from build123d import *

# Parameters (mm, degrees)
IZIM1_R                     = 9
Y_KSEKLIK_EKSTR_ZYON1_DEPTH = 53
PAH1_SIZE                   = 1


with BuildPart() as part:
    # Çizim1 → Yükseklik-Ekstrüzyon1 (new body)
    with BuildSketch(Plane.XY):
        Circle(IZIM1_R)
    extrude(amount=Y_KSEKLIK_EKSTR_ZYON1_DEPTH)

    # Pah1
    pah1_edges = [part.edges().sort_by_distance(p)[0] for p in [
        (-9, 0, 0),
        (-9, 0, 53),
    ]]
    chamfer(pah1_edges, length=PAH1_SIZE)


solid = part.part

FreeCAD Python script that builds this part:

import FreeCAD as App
import Part
import Sketcher
Q = App.Units.Quantity


def edges_at(feature, points):
    """Names of the edges that pass closest to the given points."""
    edges = feature.Shape.Edges
    near = lambda p: min(range(len(edges)), key=lambda i: edges[i].distToShape(Part.Vertex(*p))[0])
    return sorted({f"Edge{near(p) + 1}" for p in points})

doc = App.newDocument("Part")
body = doc.addObject("PartDesign::Body", "Body")

sketch1 = body.newObject("Sketcher::SketchObject", "Sketch")
sketch1.AttachmentSupport = (doc.getObject("XY_Plane"), [""])
sketch1.MapMode = "FlatFace"
sketch1.addGeometry(Part.Circle(App.Vector(0, 0, 0), App.Vector(0, 0, 1), 9), False)
sketch1.addConstraint(Sketcher.Constraint("Coincident", 0, 3, -1, 1))
sketch1.addConstraint(Sketcher.Constraint("Diameter", 0, Q("18 mm")))
pad1 = body.newObject("PartDesign::Pad", "Pad")
pad1.Profile = sketch1
pad1.Length = 53
doc.recompute()

chamfer = body.newObject("PartDesign::Chamfer", "Chamfer")
chamfer.Base = (pad1, edges_at(pad1, [(-9, 0, 0), (-9, 0, 53)]))
chamfer.Size = 1

doc.recompute()
